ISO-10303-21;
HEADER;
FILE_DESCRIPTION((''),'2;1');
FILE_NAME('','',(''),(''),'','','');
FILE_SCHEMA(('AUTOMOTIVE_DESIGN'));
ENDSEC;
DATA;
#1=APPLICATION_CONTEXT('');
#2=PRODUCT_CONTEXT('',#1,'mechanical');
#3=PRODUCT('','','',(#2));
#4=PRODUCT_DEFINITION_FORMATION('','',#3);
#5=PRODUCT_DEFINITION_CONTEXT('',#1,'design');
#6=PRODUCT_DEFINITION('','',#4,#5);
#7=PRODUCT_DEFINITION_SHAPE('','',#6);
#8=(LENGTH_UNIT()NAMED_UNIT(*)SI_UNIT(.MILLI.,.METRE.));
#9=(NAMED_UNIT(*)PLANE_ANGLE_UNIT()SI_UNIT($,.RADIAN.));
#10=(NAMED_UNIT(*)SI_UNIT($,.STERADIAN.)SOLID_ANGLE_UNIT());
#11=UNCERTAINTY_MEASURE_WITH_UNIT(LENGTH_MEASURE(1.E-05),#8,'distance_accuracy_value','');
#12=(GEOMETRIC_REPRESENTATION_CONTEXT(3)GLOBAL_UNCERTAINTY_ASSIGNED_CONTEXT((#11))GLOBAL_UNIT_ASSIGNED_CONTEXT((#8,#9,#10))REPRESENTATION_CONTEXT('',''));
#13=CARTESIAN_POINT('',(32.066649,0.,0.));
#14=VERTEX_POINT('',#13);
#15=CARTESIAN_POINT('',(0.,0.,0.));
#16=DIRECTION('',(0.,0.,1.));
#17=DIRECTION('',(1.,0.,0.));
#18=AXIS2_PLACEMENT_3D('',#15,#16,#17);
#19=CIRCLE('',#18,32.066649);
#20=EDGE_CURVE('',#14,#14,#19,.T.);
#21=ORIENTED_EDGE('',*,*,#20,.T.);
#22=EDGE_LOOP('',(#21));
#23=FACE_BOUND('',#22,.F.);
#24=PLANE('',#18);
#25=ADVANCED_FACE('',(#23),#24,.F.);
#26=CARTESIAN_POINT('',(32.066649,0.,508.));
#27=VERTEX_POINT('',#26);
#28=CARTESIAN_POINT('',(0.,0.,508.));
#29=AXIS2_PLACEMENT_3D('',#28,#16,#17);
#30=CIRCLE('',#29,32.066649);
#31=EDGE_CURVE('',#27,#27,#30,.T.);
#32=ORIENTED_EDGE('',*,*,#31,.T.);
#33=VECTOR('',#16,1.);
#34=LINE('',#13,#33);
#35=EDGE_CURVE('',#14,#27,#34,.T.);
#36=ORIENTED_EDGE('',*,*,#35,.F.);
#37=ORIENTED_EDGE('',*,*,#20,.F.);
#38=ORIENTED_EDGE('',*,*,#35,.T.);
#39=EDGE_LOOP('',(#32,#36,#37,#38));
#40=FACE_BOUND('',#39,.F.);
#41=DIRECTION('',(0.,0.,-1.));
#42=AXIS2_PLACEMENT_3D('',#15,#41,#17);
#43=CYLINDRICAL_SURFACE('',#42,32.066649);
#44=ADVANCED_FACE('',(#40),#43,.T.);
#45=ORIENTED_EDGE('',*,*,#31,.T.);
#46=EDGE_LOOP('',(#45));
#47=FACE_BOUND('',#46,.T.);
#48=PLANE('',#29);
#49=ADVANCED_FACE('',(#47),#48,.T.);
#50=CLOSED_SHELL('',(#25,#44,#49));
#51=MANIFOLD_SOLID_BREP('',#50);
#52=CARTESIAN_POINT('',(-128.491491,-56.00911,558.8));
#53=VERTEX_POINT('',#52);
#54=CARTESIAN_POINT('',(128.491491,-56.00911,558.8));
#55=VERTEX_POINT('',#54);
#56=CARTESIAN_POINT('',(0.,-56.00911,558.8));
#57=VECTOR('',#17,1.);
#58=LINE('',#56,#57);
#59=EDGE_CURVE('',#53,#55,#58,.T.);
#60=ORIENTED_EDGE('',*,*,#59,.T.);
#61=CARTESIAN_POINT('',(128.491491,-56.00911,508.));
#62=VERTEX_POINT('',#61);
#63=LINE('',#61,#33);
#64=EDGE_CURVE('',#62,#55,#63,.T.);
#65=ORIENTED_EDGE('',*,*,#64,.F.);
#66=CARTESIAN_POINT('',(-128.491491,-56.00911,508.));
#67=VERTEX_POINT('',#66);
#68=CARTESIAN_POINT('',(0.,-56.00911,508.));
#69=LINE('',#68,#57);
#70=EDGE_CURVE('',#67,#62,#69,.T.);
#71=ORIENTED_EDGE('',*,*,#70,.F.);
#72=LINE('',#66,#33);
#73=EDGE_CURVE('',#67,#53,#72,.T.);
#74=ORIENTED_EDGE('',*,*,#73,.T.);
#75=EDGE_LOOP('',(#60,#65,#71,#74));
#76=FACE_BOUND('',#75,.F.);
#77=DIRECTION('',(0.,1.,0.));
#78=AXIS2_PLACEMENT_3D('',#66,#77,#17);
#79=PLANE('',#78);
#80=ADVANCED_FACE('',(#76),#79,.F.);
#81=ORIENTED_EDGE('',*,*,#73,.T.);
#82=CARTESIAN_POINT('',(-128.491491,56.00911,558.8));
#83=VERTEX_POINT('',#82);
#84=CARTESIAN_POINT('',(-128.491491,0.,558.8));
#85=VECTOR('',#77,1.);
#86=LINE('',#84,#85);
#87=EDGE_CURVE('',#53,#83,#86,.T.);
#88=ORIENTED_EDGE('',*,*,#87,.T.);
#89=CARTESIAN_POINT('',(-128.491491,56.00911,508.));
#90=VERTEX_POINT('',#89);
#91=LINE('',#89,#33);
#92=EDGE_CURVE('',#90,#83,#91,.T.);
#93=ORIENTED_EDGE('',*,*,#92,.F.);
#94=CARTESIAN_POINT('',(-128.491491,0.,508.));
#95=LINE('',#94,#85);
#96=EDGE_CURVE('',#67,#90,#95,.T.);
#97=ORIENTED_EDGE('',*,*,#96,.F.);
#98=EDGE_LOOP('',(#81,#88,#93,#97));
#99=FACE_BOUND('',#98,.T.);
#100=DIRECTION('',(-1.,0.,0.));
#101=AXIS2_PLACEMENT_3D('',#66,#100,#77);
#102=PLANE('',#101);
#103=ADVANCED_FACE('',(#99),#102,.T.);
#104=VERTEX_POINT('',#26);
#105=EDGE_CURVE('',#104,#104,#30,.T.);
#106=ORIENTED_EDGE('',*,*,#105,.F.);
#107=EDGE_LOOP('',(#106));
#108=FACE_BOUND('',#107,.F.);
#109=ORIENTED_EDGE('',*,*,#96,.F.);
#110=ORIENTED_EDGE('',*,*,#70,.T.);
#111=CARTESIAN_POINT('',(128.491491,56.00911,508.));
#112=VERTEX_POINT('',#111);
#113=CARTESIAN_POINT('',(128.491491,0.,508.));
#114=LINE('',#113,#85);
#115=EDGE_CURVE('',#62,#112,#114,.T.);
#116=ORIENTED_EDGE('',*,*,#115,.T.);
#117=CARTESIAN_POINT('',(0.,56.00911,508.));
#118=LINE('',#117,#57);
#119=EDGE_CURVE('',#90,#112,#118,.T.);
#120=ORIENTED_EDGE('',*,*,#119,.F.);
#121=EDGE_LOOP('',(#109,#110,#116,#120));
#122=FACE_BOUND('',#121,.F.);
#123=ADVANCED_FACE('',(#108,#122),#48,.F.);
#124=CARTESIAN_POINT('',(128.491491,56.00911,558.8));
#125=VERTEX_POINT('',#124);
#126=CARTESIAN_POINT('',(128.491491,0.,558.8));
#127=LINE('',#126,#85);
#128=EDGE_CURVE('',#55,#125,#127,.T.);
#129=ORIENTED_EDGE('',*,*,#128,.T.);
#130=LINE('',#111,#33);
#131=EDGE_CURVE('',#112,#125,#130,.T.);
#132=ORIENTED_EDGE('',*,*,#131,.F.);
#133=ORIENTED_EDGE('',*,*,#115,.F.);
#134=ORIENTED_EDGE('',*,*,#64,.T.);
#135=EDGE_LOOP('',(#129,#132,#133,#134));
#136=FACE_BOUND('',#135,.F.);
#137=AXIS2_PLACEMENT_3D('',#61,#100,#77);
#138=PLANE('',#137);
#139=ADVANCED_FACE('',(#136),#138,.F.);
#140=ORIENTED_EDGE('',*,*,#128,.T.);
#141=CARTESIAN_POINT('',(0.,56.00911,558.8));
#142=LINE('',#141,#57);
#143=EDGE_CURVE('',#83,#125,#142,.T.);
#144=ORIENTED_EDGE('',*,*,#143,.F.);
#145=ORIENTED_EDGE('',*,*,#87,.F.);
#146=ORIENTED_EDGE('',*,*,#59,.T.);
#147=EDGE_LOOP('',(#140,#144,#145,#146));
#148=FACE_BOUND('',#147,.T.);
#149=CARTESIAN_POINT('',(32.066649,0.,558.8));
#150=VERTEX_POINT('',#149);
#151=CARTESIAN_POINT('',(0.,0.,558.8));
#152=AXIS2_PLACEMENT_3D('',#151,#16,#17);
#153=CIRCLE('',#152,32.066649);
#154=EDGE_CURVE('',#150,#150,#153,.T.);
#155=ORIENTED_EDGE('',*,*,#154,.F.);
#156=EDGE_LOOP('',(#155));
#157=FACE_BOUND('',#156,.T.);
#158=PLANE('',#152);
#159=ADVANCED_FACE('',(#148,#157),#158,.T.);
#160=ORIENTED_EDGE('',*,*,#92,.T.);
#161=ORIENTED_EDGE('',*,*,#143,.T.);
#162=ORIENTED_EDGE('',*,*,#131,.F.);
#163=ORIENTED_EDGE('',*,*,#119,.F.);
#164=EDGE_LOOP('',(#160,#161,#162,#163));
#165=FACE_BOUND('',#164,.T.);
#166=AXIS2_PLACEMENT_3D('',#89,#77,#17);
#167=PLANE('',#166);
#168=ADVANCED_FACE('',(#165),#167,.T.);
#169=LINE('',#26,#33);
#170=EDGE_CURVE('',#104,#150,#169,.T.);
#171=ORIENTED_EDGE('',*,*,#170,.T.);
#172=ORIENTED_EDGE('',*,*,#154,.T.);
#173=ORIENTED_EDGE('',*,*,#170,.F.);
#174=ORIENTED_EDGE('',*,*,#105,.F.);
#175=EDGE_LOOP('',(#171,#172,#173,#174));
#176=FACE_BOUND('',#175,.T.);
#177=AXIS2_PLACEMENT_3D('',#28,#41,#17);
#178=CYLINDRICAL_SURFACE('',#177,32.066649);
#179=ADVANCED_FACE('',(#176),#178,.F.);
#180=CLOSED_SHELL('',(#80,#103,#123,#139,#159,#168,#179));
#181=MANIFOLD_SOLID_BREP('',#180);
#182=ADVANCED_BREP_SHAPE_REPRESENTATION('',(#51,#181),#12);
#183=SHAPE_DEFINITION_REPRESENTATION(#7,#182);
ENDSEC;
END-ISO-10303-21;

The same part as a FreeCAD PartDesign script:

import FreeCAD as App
import Part
import Sketcher

V = App.Vector
Q = App.Units.Quantity

doc = App.newDocument("Part")
body = doc.addObject("PartDesign::Body", "Body")

sketch1 = body.newObject("Sketcher::SketchObject", "Sketch")
sketch1.AttachmentSupport = (doc.getObject("XY_Plane"), [""])
sketch1.MapMode = "FlatFace"
sketch1.addGeometry(Part.Circle(V(0, 0, 0), V(0, 0, 1), 32.066649), False)
sketch1.addConstraint([
    Sketcher.Constraint("Coincident", 0, 3, -1, 1),
    Sketcher.Constraint("Diameter", 0, Q("64.133298 mm")),
])
pad1 = body.newObject("PartDesign::Pad", "Pad")
pad1.Profile = sketch1
pad1.Length = Q("20 in")
body2 = doc.addObject("PartDesign::Body", "Body001")

sketch2 = body2.newObject("Sketcher::SketchObject", "Sketch001")
sketch2.AttachmentSupport = (doc.getObject("XY_Plane001"), [""])
sketch2.MapMode = "FlatFace"
sketch2.AttachmentOffset = App.Placement(V(0, 0, 20 * 25.4), App.Rotation())
sketch2.addGeometry([
    Part.LineSegment(V(-128.491491, 56.00911, 0), V(-128.491491, -56.00911, 0)),
    Part.LineSegment(V(-128.491491, -56.00911, 0), V(128.491491, -56.00911, 0)),
    Part.LineSegment(V(128.491491, -56.00911, 0), V(128.491491, 56.00911, 0)),
    Part.LineSegment(V(128.491491, 56.00911, 0), V(-128.491491, 56.00911, 0)),
    Part.Circle(V(0, 0, 0), V(0, 0, 1), 32.066649),
], False)
sketch2.addConstraint([
    Sketcher.Constraint("Coincident", 0, 2, 1, 1),
    Sketcher.Constraint("Coincident", 1, 2, 2, 1),
    Sketcher.Constraint("Coincident", 2, 2, 3, 1),
    Sketcher.Constraint("Coincident", 3, 2, 0, 1),
    Sketcher.Constraint("Vertical", 0),
    Sketcher.Constraint("Horizontal", 1),
    Sketcher.Constraint("Vertical", 2),
    Sketcher.Constraint("Horizontal", 3),
    Sketcher.Constraint("Coincident", 4, 3, -1, 1),
    Sketcher.Constraint("Symmetric", 0, 2, 2, 2, -1, 1),
    Sketcher.Constraint("Diameter", 4, Q("64.133298 mm")),
    Sketcher.Constraint("DistanceX", 1, 1, 1, 2, Q("256.982982 mm")),
    Sketcher.Constraint("DistanceY", 0, 2, 0, 1, Q("112.01822 mm")),
])
pad2 = body2.newObject("PartDesign::Pad", "Pad001")
pad2.Profile = sketch2
pad2.Length = Q("2 in")

doc.recompute()
